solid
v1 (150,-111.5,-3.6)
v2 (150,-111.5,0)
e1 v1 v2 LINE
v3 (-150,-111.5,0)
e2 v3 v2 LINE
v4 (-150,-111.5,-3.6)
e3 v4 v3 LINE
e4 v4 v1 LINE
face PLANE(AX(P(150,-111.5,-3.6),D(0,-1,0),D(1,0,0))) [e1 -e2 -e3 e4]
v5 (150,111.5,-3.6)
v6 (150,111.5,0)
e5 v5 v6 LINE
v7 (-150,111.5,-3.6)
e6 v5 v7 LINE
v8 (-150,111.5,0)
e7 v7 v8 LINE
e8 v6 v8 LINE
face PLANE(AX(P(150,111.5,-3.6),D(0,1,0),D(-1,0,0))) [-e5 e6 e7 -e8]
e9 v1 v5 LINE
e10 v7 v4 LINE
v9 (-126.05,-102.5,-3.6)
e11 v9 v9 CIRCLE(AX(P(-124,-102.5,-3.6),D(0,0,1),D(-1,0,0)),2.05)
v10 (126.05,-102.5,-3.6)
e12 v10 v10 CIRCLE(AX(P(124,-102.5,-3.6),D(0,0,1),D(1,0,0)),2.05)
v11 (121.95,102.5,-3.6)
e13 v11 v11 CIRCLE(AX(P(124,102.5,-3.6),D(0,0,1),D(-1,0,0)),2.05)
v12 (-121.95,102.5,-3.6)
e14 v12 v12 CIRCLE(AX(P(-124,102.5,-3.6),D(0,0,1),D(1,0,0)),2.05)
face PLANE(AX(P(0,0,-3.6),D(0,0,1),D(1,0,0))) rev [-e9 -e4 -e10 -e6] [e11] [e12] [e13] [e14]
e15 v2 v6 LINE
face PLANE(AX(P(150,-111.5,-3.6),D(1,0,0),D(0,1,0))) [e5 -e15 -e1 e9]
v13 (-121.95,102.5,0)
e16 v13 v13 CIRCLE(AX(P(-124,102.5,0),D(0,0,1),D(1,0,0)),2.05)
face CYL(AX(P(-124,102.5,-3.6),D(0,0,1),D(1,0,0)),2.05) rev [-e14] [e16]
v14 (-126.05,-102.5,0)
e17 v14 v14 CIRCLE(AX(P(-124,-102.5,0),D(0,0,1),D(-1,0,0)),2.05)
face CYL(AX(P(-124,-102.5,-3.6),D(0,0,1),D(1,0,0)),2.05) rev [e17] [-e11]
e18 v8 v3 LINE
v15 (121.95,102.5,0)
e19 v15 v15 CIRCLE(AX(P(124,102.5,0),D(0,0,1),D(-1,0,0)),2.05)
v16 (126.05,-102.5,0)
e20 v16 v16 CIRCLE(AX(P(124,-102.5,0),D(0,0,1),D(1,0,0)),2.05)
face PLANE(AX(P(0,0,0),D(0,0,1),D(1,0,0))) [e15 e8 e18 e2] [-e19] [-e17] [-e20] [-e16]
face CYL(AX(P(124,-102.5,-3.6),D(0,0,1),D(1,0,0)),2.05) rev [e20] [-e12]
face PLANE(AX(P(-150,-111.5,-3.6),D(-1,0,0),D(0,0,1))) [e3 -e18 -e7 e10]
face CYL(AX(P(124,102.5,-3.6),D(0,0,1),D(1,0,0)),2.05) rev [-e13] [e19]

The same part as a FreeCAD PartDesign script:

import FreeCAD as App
import Part
import Sketcher
from FreeCAD import Vector

doc = App.newDocument("Part")
body = doc.addObject("PartDesign::Body", "Body")

sketch1 = body.newObject("Sketcher::SketchObject", "Sketch")
sketch1.AttachmentSupport = (doc.getObject("XY_Plane"), [""])
sketch1.MapMode = "FlatFace"
sketch1.addGeometry([
    Part.LineSegment(Vector(-150, 111.5, 0), Vector(-150, -111.5, 0)),
    Part.LineSegment(Vector(-150, -111.5, 0), Vector(150, -111.5, 0)),
    Part.LineSegment(Vector(150, -111.5, 0), Vector(150, 111.5, 0)),
    Part.LineSegment(Vector(150, 111.5, 0), Vector(-150, 111.5, 0)),
    Part.Circle(Vector(-124, -102.5, 0), Vector(0, 0, 1), 2),
    Part.Circle(Vector(124, -102.5, 0), Vector(0, 0, 1), 2),
    Part.Circle(Vector(-124, 102.5, 0), Vector(0, 0, 1), 2),
    Part.Circle(Vector(124, 102.5, 0), Vector(0, 0, 1), 2),
], False)
sketch1.addConstraint([
    Sketcher.Constraint("Coincident", 0, 2, 1, 1),
    Sketcher.Constraint("Coincident", 1, 2, 2, 1),
    Sketcher.Constraint("Coincident", 2, 2, 3, 1),
    Sketcher.Constraint("Coincident", 3, 2, 0, 1),
    Sketcher.Constraint("Vertical", 0),
    Sketcher.Constraint("Horizontal", 1),
    Sketcher.Constraint("Vertical", 2),
    Sketcher.Constraint("Horizontal", 3),
    Sketcher.Constraint("Equal", 4, 5),
    Sketcher.Constraint("Equal", 5, 6),
    Sketcher.Constraint("Equal", 6, 7),
    Sketcher.Constraint("Symmetric", 5, 3, 6, 3, -1, 1),
    Sketcher.Constraint("Symmetric", 4, 3, 7, 3, -1, 1),
    Sketcher.Constraint("Symmetric", 0, 2, 2, 2, -1, 1),
    Sketcher.Constraint("Symmetric", 4, 3, 5, 3, -2),
    Sketcher.Constraint("Diameter", 4, 4.1),
    Sketcher.Constraint("DistanceX", 1, 1, 1, 2, 300.0),
    Sketcher.Constraint("DistanceY", 0, 2, 0, 1, 223.0),
    Sketcher.Constraint("DistanceX", 4, 3, -1, 1, 124.0),
    Sketcher.Constraint("DistanceY", 4, 3, 6, 3, 205.0),
])
pad1 = body.newObject("PartDesign::Pad", "Pad")
pad1.Profile = sketch1
pad1.Length = 3.6
pad1.Reversed = True

doc.recompute()
